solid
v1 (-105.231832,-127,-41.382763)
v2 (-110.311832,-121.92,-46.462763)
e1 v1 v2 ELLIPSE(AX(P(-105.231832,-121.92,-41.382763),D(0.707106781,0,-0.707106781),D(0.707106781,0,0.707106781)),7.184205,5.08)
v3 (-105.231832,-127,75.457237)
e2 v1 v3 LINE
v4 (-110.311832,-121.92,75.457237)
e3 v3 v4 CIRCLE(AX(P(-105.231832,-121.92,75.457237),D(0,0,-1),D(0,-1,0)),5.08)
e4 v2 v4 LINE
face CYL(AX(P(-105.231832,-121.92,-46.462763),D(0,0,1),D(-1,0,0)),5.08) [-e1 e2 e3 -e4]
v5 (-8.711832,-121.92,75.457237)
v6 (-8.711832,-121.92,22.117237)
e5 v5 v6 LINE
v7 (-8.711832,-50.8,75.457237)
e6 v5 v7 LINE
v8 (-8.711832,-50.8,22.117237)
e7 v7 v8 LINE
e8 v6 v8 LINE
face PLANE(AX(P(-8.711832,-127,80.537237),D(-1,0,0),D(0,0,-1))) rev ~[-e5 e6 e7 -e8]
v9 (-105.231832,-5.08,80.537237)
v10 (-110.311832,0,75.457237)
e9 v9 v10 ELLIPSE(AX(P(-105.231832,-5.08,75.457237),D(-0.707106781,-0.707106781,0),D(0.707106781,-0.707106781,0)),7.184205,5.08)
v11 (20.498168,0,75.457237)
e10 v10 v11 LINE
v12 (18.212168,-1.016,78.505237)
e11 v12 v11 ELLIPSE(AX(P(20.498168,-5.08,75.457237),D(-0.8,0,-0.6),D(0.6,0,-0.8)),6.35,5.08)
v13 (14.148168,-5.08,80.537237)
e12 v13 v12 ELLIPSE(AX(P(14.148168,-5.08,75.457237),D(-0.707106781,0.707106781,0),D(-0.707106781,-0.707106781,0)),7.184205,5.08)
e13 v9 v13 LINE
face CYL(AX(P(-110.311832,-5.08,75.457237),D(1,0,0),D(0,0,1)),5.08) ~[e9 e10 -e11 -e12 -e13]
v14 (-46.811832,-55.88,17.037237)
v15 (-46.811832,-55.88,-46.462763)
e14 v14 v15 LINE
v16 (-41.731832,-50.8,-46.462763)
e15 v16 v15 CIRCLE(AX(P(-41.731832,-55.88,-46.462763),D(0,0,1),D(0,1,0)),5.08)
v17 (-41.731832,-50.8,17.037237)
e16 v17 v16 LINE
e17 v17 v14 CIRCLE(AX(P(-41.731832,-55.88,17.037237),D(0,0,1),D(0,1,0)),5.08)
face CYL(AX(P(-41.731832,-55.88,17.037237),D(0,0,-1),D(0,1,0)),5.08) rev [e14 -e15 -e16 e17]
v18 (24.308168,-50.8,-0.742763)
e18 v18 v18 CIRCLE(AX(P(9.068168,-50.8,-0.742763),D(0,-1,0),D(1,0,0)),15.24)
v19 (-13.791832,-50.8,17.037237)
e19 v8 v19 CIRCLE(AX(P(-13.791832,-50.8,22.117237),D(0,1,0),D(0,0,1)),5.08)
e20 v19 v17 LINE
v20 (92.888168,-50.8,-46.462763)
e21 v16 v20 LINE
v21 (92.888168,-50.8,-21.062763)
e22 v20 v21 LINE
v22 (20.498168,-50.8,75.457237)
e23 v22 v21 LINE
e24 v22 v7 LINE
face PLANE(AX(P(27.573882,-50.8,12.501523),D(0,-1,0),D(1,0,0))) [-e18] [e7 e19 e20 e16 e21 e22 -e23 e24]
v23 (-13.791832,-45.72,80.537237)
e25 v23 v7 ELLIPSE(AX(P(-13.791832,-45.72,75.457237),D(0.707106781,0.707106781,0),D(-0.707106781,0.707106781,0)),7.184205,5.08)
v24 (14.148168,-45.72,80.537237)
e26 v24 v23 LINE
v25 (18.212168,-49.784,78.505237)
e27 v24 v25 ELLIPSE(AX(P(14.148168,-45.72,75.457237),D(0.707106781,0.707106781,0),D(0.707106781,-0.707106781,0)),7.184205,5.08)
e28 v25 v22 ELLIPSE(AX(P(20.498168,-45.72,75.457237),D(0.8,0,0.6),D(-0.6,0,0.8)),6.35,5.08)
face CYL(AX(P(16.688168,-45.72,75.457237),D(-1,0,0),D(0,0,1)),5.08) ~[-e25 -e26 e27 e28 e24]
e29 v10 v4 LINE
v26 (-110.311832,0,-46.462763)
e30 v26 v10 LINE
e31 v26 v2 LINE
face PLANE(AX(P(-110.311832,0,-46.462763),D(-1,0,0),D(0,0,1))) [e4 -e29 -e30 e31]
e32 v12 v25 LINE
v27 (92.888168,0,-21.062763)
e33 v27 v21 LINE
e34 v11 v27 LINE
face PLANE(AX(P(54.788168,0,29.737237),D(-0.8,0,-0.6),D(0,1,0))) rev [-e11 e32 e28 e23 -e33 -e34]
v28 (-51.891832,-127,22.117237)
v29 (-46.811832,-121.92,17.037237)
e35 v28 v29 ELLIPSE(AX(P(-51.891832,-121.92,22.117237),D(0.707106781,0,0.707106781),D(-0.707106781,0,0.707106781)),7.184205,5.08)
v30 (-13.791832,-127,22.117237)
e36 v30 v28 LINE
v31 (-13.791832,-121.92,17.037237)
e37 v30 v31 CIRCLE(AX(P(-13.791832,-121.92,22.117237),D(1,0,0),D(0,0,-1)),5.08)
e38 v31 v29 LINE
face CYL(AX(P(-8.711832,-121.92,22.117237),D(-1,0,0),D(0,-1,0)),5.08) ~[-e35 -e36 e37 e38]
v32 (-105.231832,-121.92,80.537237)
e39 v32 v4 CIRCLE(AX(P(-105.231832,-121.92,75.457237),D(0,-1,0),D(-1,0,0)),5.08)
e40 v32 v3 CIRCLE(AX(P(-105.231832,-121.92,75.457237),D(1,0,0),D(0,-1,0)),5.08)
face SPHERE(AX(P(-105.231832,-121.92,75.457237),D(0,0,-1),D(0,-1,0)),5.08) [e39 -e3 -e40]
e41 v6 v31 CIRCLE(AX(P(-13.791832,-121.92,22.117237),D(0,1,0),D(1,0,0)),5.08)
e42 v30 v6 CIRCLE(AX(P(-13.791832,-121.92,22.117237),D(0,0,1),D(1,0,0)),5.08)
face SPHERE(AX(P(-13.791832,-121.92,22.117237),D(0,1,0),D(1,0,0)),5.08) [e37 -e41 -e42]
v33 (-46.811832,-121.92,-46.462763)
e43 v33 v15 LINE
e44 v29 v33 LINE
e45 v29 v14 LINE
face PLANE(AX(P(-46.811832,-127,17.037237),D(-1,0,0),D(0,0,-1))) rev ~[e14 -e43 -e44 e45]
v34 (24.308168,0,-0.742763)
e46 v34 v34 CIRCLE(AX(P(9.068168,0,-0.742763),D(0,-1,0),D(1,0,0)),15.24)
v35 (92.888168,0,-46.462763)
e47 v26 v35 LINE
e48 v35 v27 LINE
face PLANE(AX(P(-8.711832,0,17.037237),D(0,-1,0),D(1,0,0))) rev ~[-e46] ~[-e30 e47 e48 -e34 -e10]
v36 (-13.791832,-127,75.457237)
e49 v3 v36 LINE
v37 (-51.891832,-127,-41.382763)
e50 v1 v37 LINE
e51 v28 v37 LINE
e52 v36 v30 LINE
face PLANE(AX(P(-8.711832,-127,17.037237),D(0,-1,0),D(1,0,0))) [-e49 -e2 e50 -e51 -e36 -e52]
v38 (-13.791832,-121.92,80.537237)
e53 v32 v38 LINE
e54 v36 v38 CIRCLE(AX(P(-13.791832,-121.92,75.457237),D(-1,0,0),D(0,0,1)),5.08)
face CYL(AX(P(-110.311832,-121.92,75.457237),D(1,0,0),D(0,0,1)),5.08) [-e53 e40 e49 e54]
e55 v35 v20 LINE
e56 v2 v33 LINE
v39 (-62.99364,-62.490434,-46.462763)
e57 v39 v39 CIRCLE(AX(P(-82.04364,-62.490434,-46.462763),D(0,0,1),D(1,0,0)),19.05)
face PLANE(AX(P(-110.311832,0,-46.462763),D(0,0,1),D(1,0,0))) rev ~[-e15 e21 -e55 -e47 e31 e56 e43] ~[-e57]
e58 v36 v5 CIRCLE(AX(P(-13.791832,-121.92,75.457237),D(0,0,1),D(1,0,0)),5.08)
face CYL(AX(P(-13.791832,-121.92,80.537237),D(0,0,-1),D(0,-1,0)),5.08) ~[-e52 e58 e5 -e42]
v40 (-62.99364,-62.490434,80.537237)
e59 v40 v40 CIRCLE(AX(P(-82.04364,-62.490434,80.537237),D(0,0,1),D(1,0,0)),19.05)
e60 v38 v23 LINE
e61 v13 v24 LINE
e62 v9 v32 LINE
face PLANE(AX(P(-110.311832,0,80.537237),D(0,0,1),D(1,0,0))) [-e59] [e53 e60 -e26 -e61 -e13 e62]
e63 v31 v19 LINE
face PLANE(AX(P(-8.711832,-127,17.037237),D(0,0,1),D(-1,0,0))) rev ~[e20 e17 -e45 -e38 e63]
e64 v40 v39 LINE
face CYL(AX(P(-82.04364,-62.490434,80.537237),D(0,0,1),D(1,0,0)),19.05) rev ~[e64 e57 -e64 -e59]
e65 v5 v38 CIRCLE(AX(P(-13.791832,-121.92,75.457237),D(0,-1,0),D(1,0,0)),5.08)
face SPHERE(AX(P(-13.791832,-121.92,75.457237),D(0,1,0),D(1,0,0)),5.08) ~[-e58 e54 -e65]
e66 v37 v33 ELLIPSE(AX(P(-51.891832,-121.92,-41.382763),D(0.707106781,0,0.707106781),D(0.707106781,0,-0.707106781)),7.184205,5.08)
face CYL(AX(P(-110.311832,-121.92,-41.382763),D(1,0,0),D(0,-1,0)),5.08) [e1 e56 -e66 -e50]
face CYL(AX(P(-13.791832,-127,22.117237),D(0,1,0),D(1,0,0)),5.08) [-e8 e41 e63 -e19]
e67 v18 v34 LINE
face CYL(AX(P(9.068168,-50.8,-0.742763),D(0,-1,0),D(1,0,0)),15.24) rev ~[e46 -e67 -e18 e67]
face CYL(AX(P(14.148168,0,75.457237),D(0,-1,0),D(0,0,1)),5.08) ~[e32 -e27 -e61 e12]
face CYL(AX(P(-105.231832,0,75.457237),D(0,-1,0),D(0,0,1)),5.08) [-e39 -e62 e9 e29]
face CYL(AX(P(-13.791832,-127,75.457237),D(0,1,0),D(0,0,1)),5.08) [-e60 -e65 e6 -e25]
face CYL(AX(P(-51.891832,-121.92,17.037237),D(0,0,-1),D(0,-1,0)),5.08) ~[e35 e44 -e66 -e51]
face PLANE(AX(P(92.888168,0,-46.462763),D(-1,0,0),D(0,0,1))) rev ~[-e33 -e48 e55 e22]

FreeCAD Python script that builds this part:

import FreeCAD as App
import Part
import Sketcher

V = App.Vector
Q = App.Units.Quantity


def edges_at(feature, points):
    """Names of the edges that pass closest to the given points."""
    edges = feature.Shape.Edges
    near = lambda p: min(range(len(edges)), key=lambda i: edges[i].distToShape(Part.Vertex(*p))[0])
    return sorted({f"Edge{near(p) + 1}" for p in points})


def add_polygon(sketch, points):
    """Adds a closed chain of lines whose ends are joined by coincident constraints."""
    first, n = sketch.GeometryCount, len(points)
    for a, b in zip(points, points[1:] + points[:1]):
        sketch.addGeometry(Part.LineSegment(App.Vector(*a, 0), App.Vector(*b, 0)), False)
    for i in range(n):
        sketch.addConstraint(Sketcher.Constraint("Coincident", first + i, 2, first + (i + 1) % n, 1))

doc = App.newDocument("Part")
params = doc.addObject("Spreadsheet::Sheet", "Params")
for row, (alias, value) in enumerate([
    ("sketch1_width", "8 in"),
    ("sketch1_height", "5 in"),
    ("pad1_length", "5 in"),
    ("sketch2_width", "4 in"),
    ("sketch2_height", "5 in"),
    ("sketch2_width2", "1.5 in"),
    ("pocket1_length", "3 in"),
    ("chamfer_size", "3 in"),
    ("chamfer_size2", "4 in"),
    ("fillet_radius", "0.2 in"),
    ("sketch3_diameter", "1.2 in"),
    ("sketch4_diameter", "1.5 in"),
], start=1):
    params.set(f"A{row}", alias)
    params.set(f"B{row}", "=" + value)
    params.setAlias(f"B{row}", alias)

body = doc.addObject("PartDesign::Body", "Body")

# Sketch on XZ plane
sketch1 = body.newObject("Sketcher::SketchObject", "Sketch")
sketch1.AttachmentSupport = (doc.getObject("XZ_Plane"), [""])
sketch1.MapMode = "FlatFace"
add_polygon(sketch1, [(-110.311832, 80.537237), (-110.311832, -46.462763), (92.888168, -46.462763), (92.888168, 80.537237)])  # lines 0-3
sketch1.addConstraint(Sketcher.Constraint("Vertical", 0))
sketch1.addConstraint(Sketcher.Constraint("Horizontal", 1))
sketch1.addConstraint(Sketcher.Constraint("Vertical", 2))
sketch1.addConstraint(Sketcher.Constraint("Horizontal", 3))
sketch1.addConstraint(Sketcher.Constraint("DistanceX", 1, 1, 1, 2, Q("8 in")))
sketch1.addConstraint(Sketcher.Constraint("DistanceY", 0, 2, 0, 1, Q("5 in")))
sketch1.addConstraint(Sketcher.Constraint("DistanceX", 0, 2, -1, 1, Q("110.311832 mm")))
sketch1.addConstraint(Sketcher.Constraint("DistanceY", 0, 2, -1, 1, Q("46.462763 mm")))
sketch1.setExpression("Constraints[8]", "Params.sketch1_width")
sketch1.setExpression("Constraints[9]", "Params.sketch1_height")
pad1 = body.newObject("PartDesign::Pad", "Pad")
pad1.Profile = sketch1
pad1.setExpression("Length", "Params.pad1_length")

# Sketch on XZ plane
sketch2 = body.newObject("Sketcher::SketchObject", "Sketch001")
sketch2.AttachmentSupport = (doc.getObject("XZ_Plane"), [""])
sketch2.MapMode = "FlatFace"
sketch2.AttachmentOffset = App.Placement(V(0, 0, 5 * 25.4), App.Rotation())
add_polygon(sketch2, [(92.888168, 80.537237), (-8.711832, 80.537237), (-8.711832, 17.037237), (-46.811832, 17.037237), (-46.811832, -46.462763), (92.888168, -46.462763)])  # lines 0-5
sketch2.addConstraint(Sketcher.Constraint("Horizontal", 0))
sketch2.addConstraint(Sketcher.Constraint("Vertical", 1))
sketch2.addConstraint(Sketcher.Constraint("Horizontal", 2))
sketch2.addConstraint(Sketcher.Constraint("Vertical", 3))
sketch2.addConstraint(Sketcher.Constraint("Horizontal", 4))
sketch2.addConstraint(Sketcher.Constraint("Vertical", 5))
sketch2.addConstraint(Sketcher.Constraint("Equal", 1, 3))
sketch2.addConstraint(Sketcher.Constraint("DistanceX", 0, 2, 0, 1, Q("4 in")))
sketch2.addConstraint(Sketcher.Constraint("DistanceY", 5, 1, 5, 2, Q("5 in")))
sketch2.addConstraint(Sketcher.Constraint("DistanceX", 2, 2, 2, 1, Q("1.5 in")))
sketch2.addConstraint(Sketcher.Constraint("DistanceX", 0, 2, -1, 1, Q("8.711832 mm")))
sketch2.addConstraint(Sketcher.Constraint("DistanceY", -1, 1, 0, 2, Q("80.537237 mm")))
sketch2.setExpression("Constraints[13]", "Params.sketch2_width")
sketch2.setExpression("Constraints[14]", "Params.sketch2_height")
sketch2.setExpression("Constraints[15]", "Params.sketch2_width2")
pocket1 = body.newObject("PartDesign::Pocket", "Pocket")
pocket1.Profile = sketch2
pocket1.setExpression("Length", "Params.pocket1_length")
doc.recompute()

chamfer = body.newObject("PartDesign::Chamfer", "Chamfer")
chamfer.Base = (pocket1, edges_at(pocket1, [(92.888, -25.4, 80.537)]))
chamfer.ChamferType = "Two distances"
chamfer.setExpression("Size", "Params.chamfer_size")
chamfer.setExpression("Size2", "Params.chamfer_size2")
doc.recompute()

fillet = body.newObject("PartDesign::Fillet", "Fillet")
fillet.Base = (chamfer, edges_at(chamfer, [
    (-8.712, -88.9, 80.537),
    (3.988, -50.8, 80.537),
    (-8.712, -88.9, 17.037),
    (-8.712, -127, 48.787),
    (-27.762, -127, 17.037),
    (-46.812, -127, -14.713),
    (-78.562, -127, -46.463),
    (-110.312, -127, 17.037),
    (-59.512, -127, 80.537),
    (-46.812, -50.8, -14.713),
    (16.688, -25.4, 80.537),
    (-46.812, 0, 80.537),
    (-110.312, -63.5, 80.537),
]))
fillet.setExpression("Radius", "Params.fillet_radius")

# Sketch on XZ plane
sketch3 = body.newObject("Sketcher::SketchObject", "Sketch002")
sketch3.AttachmentSupport = (doc.getObject("XZ_Plane"), [""])
sketch3.MapMode = "FlatFace"
sketch3.AttachmentOffset = App.Placement(V(0, 0, 2 * 25.4), App.Rotation())
sketch3.addGeometry(Part.Circle(V(9.068168, -0.742763, 0), V(0, 0, 1), 15.24), False)
sketch3.addConstraint(Sketcher.Constraint("Diameter", 0, Q("1.2 in")))
sketch3.addConstraint(Sketcher.Constraint("DistanceX", -1, 1, 0, 3, Q("9.068168 mm")))
sketch3.addConstraint(Sketcher.Constraint("DistanceY", 0, 3, -1, 1, Q("0.742763 mm")))
sketch3.setExpression("Constraints[0]", "Params.sketch3_diameter")
pocket2 = body.newObject("PartDesign::Pocket", "Pocket001")
pocket2.Profile = sketch3
pocket2.Type = "ThroughAll"

# Sketch on XY plane
sketch4 = body.newObject("Sketcher::SketchObject", "Sketch003")
sketch4.AttachmentSupport = (doc.getObject("XY_Plane"), [""])
sketch4.MapMode = "FlatFace"
sketch4.AttachmentOffset = App.Placement(V(0, 0, 80.537237), App.Rotation())
sketch4.addGeometry(Part.Circle(V(-82.04364, -62.490434, 0), V(0, 0, 1), 19.05), False)
sketch4.addConstraint(Sketcher.Constraint("Diameter", 0, Q("1.5 in")))
sketch4.addConstraint(Sketcher.Constraint("DistanceX", 0, 3, -1, 1, Q("82.04364 mm")))
sketch4.addConstraint(Sketcher.Constraint("DistanceY", 0, 3, -1, 1, Q("62.490434 mm")))
sketch4.setExpression("Constraints[0]", "Params.sketch4_diameter")
pocket3 = body.newObject("PartDesign::Pocket", "Pocket002")
pocket3.Profile = sketch4
pocket3.Type = "ThroughAll"

doc.recompute()
